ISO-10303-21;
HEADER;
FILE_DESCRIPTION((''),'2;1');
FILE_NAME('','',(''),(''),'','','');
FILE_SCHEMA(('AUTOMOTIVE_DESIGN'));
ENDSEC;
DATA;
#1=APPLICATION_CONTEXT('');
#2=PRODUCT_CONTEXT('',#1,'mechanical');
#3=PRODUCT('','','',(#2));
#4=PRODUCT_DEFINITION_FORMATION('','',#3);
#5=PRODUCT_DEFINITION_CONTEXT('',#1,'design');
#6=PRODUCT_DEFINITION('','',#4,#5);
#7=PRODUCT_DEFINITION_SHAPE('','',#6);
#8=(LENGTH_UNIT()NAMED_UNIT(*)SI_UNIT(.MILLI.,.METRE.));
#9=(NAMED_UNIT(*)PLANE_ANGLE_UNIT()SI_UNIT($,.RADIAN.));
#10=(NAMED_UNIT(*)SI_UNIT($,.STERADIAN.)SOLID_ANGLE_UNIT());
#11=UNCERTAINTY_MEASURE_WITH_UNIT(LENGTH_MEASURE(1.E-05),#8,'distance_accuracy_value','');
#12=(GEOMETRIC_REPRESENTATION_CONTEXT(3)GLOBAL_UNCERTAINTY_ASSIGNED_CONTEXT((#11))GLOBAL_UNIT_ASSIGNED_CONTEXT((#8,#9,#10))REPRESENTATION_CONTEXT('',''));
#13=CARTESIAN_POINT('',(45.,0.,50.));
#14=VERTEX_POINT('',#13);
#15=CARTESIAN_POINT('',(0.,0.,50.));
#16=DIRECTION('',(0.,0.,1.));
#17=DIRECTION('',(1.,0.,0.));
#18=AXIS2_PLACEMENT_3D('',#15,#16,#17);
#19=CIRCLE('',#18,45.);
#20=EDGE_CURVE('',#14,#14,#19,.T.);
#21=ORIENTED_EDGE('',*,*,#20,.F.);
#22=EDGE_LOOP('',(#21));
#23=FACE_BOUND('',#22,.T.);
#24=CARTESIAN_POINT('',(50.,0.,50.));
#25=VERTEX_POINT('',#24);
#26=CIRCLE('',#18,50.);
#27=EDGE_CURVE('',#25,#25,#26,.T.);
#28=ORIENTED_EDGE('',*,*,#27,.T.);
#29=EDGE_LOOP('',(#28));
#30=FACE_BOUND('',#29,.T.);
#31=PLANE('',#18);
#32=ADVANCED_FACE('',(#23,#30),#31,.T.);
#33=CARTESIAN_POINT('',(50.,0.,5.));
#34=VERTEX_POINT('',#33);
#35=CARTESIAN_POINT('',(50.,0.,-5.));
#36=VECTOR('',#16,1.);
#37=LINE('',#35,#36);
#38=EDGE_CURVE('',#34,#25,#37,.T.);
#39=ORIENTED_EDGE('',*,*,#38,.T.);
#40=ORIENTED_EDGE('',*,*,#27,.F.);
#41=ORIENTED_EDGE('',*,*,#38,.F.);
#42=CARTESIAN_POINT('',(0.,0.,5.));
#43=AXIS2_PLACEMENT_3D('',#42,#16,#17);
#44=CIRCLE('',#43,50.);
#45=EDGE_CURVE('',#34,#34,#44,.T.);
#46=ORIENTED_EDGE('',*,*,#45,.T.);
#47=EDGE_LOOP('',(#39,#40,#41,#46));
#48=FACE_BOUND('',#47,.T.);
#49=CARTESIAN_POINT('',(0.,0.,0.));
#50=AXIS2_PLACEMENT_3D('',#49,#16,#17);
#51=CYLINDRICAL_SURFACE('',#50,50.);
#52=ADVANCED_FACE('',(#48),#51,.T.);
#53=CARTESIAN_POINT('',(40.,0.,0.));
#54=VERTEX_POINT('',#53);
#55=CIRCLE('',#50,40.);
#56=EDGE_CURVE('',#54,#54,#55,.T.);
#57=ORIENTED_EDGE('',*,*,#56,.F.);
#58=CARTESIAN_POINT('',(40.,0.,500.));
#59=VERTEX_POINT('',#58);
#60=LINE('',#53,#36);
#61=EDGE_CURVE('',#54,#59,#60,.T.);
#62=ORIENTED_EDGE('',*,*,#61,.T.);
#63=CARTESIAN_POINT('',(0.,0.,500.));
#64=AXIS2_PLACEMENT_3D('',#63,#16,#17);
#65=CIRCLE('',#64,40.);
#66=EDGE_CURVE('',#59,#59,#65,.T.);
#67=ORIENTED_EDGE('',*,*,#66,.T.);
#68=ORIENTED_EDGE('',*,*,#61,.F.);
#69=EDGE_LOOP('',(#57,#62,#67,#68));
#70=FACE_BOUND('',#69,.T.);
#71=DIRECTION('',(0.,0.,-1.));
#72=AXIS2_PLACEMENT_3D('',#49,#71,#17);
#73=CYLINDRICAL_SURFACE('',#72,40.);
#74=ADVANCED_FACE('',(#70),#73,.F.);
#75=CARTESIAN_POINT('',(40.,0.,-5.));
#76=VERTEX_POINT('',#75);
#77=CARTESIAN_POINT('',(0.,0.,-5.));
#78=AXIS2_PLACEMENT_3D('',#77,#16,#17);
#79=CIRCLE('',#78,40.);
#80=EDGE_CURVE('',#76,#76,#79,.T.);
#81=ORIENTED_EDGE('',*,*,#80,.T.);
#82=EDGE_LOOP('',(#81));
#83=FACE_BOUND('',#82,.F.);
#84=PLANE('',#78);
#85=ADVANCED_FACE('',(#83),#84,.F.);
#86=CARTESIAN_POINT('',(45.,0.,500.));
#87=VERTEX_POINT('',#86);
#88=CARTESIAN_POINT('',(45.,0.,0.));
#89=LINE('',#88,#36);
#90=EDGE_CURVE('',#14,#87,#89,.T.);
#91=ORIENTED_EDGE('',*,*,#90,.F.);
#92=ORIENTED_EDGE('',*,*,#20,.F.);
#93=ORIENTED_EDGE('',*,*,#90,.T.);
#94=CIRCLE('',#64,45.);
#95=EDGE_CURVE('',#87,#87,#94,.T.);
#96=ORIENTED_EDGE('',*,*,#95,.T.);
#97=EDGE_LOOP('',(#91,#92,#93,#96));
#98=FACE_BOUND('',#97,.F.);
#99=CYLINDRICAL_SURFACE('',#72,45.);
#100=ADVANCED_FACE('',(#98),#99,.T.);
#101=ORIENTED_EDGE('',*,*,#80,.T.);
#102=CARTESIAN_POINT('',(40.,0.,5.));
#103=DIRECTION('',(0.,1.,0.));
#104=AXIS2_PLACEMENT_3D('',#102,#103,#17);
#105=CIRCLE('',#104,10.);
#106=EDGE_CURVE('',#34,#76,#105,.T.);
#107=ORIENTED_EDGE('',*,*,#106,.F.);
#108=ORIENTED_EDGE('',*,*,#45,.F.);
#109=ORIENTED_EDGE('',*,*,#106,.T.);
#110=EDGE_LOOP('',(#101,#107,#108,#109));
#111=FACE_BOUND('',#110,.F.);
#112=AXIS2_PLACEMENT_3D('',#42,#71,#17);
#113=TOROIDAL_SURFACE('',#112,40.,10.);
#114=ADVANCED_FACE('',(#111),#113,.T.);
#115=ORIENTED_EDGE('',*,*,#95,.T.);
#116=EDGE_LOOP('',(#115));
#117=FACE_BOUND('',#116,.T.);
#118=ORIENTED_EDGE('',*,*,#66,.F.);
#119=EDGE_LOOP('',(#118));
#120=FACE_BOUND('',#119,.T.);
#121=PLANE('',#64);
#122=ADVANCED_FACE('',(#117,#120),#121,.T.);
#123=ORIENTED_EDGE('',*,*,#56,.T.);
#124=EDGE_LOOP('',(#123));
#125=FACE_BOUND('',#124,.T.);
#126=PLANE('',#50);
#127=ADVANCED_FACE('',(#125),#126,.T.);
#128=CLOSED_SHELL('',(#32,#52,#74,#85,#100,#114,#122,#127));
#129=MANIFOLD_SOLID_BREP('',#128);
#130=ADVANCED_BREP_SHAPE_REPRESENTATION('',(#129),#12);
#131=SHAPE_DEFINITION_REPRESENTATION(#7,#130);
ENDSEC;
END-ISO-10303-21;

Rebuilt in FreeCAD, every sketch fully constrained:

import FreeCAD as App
import Part
import Sketcher
from FreeCAD import Vector
Q = App.Units.Quantity


def edges_at(feature, points):
    """Names of the edges that pass closest to the given points."""
    edges = feature.Shape.Edges
    near = lambda p: min(range(len(edges)), key=lambda i: edges[i].distToShape(Part.Vertex(*p))[0])
    return sorted({f"Edge{near(p) + 1}" for p in points})

doc = App.newDocument("Part")
body = doc.addObject("PartDesign::Body", "Body")

# Sketch on XY plane
sketch1 = body.newObject("Sketcher::SketchObject", "Sketch")
sketch1.AttachmentSupport = (doc.getObject("XY_Plane"), [""])
sketch1.MapMode = "FlatFace"
sketch1.addGeometry([
    Part.Circle(Vector(0, 0, 0), Vector(0, 0, 1), 50),
    Part.Circle(Vector(0, 0, 0), Vector(0, 0, 1), 45),
], False)
sketch1.addConstraint([
    Sketcher.Constraint("Coincident", 0, 3, -1, 1),
    Sketcher.Constraint("Coincident", 1, 3, -1, 1),
    Sketcher.Constraint("Diameter", 0, Q("100 mm")),
    Sketcher.Constraint("Diameter", 1, Q("90 mm")),
])
pad1 = body.newObject("PartDesign::Pad", "Pad")
pad1.Profile = sketch1
pad1.Length = 50

# Sketch on XY plane
sketch2 = body.newObject("Sketcher::SketchObject", "Sketch001")
sketch2.AttachmentSupport = (doc.getObject("XY_Plane"), [""])
sketch2.MapMode = "FlatFace"
sketch2.addGeometry([
    Part.Circle(Vector(0, 0, 0), Vector(0, 0, 1), 45),
    Part.Circle(Vector(0, 0, 0), Vector(0, 0, 1), 40),
], False)
sketch2.addConstraint([
    Sketcher.Constraint("Coincident", 0, 3, -1, 1),
    Sketcher.Constraint("Coincident", 1, 3, -1, 1),
    Sketcher.Constraint("Diameter", 0, Q("90 mm")),
    Sketcher.Constraint("Diameter", 1, Q("80 mm")),
])
pad2 = body.newObject("PartDesign::Pad", "Pad001")
pad2.Profile = sketch2
pad2.Length = 500

# Sketch on XY plane
sketch3 = body.newObject("Sketcher::SketchObject", "Sketch002")
sketch3.AttachmentSupport = (doc.getObject("XY_Plane"), [""])
sketch3.MapMode = "FlatFace"
sketch3.addGeometry(Part.Circle(Vector(0, 0, 0), Vector(0, 0, 1), 50), False)
sketch3.addConstraint([
    Sketcher.Constraint("Coincident", 0, 3, -1, 1),
    Sketcher.Constraint("Diameter", 0, Q("100 mm")),
])
pad3 = body.newObject("PartDesign::Pad", "Pad002")
pad3.Profile = sketch3
pad3.Length = 5
pad3.Reversed = True
doc.recompute()

fillet = body.newObject("PartDesign::Fillet", "Fillet")
fillet.Base = (pad3, edges_at(pad3, [(-50, 0, -5)]))
fillet.Radius = 10

doc.recompute()
